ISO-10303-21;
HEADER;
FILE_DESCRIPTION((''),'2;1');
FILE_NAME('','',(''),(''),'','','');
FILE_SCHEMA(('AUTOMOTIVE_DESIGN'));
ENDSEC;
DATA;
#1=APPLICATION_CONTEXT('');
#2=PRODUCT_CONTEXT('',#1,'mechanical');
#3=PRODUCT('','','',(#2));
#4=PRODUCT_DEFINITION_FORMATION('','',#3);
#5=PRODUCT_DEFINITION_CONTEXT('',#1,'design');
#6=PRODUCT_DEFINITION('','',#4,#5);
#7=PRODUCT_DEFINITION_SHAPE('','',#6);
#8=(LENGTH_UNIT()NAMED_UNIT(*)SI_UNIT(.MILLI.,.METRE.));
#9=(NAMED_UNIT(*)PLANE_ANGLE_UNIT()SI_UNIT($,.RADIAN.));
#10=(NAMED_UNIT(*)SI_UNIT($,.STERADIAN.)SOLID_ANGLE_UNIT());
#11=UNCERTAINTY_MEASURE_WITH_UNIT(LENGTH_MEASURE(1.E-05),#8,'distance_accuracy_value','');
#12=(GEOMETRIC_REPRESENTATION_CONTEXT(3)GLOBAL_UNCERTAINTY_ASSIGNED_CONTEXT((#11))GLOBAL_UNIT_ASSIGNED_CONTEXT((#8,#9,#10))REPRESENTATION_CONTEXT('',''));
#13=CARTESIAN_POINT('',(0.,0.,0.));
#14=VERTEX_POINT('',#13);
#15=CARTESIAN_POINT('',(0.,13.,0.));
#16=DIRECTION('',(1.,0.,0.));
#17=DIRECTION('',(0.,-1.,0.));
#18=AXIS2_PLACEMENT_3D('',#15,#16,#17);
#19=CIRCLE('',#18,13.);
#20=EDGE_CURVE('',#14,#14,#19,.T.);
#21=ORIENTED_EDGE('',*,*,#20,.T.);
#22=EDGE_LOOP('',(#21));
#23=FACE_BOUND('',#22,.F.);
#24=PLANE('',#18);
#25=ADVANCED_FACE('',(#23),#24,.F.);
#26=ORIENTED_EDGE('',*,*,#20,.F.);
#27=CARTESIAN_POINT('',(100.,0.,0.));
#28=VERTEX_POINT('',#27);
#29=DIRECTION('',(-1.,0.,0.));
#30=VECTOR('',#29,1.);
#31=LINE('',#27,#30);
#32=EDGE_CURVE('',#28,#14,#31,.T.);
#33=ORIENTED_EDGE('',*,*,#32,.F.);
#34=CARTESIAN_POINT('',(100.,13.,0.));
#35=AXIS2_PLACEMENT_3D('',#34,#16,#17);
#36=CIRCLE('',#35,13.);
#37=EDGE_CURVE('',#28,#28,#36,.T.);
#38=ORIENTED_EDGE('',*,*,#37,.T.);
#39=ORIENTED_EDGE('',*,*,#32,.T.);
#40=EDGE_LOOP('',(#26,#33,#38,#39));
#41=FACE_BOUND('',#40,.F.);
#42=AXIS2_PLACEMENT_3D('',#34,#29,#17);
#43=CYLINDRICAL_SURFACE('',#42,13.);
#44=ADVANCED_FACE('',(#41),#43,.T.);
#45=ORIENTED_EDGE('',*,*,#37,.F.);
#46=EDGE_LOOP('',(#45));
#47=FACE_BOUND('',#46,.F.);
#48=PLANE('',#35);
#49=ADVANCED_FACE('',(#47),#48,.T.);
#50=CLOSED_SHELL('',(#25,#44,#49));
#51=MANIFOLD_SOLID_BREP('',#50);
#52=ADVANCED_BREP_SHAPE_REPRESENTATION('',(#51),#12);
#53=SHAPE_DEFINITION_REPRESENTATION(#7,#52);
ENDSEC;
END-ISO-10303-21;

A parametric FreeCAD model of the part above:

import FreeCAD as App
import Part
import Sketcher
Q = App.Units.Quantity


def add_polygon(sketch, points):
    """Adds a closed chain of lines whose ends are joined by coincident constraints."""
    first, n = sketch.GeometryCount, len(points)
    for a, b in zip(points, points[1:] + points[:1]):
        sketch.addGeometry(Part.LineSegment(App.Vector(*a, 0), App.Vector(*b, 0)), False)
    for i in range(n):
        sketch.addConstraint(Sketcher.Constraint("Coincident", first + i, 2, first + (i + 1) % n, 1))

doc = App.newDocument("Part")
body = doc.addObject("PartDesign::Body", "Body")

# Sketch on XY plane
sketch1 = body.newObject("Sketcher::SketchObject", "Sketch")
sketch1.AttachmentSupport = (doc.getObject("XY_Plane"), [""])
sketch1.MapMode = "FlatFace"
add_polygon(sketch1, [(0, 13), (0, 0), (100, 0), (100, 13)])  # lines 0-3
sketch1.addGeometry(Part.LineSegment(App.Vector(0, 13, 0), App.Vector(100, 13, 0)), True)  # axis
sketch1.addConstraint([
    Sketcher.Constraint("Vertical", 0),
    Sketcher.Constraint("Horizontal", 1),
    Sketcher.Constraint("Vertical", 2),
    Sketcher.Constraint("Horizontal", 3),
    Sketcher.Constraint("Horizontal", 4),
    Sketcher.Constraint("Coincident", 0, 2, -1, 1),
    Sketcher.Constraint("Coincident", 4, 1, 3, 2),
    Sketcher.Constraint("Vertical", 1, 2, 4, 2),
    Sketcher.Constraint("DistanceX", 1, 1, 1, 2, Q("3.937 in")),
    Sketcher.Constraint("DistanceY", 0, 2, 0, 1, Q("0.5118 in")),
])
revolution = body.newObject("PartDesign::Revolution", "Revolution")
revolution.Profile = sketch1
revolution.ReferenceAxis = (sketch1, ["Axis0"])
revolution.Angle = 360

doc.recompute()
